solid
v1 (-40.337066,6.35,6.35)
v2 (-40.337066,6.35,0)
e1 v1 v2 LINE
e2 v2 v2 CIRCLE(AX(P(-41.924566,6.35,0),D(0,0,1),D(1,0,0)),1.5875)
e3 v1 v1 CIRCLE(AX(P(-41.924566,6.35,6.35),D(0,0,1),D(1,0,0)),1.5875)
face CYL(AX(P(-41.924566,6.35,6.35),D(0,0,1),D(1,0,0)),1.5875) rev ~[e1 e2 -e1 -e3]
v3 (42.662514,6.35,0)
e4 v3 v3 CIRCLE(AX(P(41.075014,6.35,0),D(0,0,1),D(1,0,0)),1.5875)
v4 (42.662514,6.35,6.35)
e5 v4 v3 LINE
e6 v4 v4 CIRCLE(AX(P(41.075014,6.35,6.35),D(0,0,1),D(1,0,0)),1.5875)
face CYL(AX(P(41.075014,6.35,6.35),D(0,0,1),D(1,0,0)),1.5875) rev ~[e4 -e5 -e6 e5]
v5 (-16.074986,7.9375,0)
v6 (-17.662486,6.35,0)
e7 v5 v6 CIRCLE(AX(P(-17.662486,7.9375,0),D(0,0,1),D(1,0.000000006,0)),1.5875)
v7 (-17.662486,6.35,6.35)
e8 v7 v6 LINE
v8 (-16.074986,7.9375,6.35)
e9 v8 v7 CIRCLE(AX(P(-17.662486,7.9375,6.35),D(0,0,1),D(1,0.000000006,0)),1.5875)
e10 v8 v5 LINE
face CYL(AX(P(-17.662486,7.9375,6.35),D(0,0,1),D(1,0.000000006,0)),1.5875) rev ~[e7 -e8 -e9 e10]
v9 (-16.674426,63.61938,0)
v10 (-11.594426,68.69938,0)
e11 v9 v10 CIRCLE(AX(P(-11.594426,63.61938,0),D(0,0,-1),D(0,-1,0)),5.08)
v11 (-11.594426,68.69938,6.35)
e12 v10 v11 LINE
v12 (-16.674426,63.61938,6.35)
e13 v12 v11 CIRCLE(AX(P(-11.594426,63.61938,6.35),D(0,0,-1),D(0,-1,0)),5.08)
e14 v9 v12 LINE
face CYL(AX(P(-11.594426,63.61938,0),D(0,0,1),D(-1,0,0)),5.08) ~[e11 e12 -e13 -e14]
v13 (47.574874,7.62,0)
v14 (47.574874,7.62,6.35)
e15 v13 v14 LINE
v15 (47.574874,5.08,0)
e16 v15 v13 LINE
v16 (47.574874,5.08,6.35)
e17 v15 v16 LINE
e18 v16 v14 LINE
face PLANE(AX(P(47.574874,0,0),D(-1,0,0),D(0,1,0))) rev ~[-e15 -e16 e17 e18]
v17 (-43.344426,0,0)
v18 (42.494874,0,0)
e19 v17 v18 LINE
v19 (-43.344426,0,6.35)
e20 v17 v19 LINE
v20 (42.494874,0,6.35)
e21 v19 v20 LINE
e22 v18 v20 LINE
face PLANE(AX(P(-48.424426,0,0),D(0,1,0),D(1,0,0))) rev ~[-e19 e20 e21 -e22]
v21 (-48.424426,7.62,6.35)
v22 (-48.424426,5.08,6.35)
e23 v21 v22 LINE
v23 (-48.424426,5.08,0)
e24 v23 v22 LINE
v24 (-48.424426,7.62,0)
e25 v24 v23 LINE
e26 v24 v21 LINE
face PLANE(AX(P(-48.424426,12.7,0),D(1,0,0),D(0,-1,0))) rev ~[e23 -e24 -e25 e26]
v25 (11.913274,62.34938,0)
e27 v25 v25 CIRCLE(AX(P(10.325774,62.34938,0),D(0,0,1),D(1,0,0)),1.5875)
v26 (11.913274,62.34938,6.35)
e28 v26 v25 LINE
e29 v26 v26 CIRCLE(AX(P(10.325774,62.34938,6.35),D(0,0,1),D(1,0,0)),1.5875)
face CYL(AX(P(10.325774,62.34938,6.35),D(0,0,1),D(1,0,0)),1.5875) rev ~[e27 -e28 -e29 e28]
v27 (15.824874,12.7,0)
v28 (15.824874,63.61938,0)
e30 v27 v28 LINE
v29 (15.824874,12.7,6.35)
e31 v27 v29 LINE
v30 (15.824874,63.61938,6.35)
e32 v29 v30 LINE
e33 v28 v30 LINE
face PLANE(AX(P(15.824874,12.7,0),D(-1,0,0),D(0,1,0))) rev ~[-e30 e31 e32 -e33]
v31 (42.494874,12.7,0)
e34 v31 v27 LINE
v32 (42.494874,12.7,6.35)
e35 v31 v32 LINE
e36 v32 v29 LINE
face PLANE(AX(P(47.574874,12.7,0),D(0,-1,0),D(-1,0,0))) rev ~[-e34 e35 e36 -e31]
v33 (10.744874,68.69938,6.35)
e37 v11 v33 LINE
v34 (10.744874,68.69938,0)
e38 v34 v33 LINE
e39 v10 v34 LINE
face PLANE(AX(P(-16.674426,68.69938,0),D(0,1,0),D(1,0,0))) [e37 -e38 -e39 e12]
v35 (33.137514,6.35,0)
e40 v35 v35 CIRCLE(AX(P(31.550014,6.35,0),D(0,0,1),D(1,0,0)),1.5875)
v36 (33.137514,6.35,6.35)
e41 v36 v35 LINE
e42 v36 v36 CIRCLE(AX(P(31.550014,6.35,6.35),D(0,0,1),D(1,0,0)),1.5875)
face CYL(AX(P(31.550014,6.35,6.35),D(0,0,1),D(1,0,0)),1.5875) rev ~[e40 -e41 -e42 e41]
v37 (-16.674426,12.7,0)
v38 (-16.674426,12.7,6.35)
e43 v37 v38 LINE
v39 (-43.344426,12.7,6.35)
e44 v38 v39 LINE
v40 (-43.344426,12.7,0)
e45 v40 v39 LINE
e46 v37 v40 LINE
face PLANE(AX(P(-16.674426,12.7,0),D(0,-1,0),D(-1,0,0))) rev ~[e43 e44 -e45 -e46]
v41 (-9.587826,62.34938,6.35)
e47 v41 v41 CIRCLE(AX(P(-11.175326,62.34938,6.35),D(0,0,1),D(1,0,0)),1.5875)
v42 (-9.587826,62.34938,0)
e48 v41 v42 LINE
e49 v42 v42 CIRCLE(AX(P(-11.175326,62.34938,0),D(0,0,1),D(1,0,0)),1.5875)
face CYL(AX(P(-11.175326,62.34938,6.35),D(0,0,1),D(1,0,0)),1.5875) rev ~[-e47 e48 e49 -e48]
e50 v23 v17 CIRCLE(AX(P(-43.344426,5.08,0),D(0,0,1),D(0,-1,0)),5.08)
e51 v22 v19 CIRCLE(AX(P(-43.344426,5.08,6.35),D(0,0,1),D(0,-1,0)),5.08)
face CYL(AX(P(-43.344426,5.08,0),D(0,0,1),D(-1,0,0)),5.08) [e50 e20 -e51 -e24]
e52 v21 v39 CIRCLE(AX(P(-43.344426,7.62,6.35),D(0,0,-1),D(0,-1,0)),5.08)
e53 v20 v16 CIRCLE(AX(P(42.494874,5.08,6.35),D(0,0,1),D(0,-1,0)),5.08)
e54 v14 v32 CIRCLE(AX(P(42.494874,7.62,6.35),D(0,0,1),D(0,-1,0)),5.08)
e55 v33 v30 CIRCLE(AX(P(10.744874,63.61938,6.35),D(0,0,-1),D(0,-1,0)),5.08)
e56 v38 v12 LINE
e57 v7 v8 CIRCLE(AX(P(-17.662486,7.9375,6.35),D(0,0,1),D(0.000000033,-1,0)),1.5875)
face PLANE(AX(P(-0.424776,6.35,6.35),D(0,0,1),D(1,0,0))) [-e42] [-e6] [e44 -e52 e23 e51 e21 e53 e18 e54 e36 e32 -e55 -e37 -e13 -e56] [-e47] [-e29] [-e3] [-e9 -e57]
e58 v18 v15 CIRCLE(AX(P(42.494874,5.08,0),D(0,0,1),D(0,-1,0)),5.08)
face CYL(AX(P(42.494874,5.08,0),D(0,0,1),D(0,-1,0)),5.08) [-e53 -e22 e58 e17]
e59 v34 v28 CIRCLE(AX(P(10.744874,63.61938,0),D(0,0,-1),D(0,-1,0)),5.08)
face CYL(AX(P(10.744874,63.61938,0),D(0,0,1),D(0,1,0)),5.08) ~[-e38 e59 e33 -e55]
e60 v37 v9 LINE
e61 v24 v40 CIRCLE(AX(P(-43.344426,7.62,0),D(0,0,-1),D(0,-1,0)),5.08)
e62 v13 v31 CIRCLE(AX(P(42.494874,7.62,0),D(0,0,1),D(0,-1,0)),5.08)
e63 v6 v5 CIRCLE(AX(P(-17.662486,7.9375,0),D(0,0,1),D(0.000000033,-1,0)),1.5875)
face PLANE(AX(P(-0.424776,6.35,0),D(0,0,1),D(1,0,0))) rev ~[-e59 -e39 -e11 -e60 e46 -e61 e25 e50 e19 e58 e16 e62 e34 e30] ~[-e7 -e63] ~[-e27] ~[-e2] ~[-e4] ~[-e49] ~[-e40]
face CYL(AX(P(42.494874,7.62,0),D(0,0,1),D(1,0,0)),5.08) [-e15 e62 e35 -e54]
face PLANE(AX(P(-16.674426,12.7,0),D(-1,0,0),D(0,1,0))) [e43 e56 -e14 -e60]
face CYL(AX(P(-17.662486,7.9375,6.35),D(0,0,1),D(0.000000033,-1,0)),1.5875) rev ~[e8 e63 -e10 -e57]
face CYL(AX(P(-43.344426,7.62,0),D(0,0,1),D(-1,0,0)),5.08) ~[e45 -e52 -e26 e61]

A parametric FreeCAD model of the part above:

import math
import FreeCAD as App
import Part
import Sketcher

V = App.Vector
Q = App.Units.Quantity


def edges_at(feature, points):
    """Names of the edges that pass closest to the given points."""
    edges = feature.Shape.Edges
    near = lambda p: min(range(len(edges)), key=lambda i: edges[i].distToShape(Part.Vertex(*p))[0])
    return sorted({f"Edge{near(p) + 1}" for p in points})


def add_polygon(sketch, points):
    """Adds a closed chain of lines whose ends are joined by coincident constraints."""
    first, n = sketch.GeometryCount, len(points)
    for a, b in zip(points, points[1:] + points[:1]):
        sketch.addGeometry(Part.LineSegment(App.Vector(*a, 0), App.Vector(*b, 0)), False)
    for i in range(n):
        sketch.addConstraint(Sketcher.Constraint("Coincident", first + i, 2, first + (i + 1) % n, 1))

doc = App.newDocument("Part")
params = doc.addObject("Spreadsheet::Sheet", "Params")
for row, (alias, value) in enumerate([
    ("sketch1_height", "0.5 in"),
    ("sketch1_width", "1.25 in"),
    ("pad1_length", "0.25 in"),
    ("sketch2_diameter", "0.125 in"),
    ("pocket1_length", "1 in"),
    ("fillet_radius", "0.2 in"),
    ("sketch3_diameter", "0.125 in"),
    ("pocket2_length", "1 in"),
], start=1):
    params.set(f"A{row}", alias)
    params.set(f"B{row}", "=" + value)
    params.setAlias(f"B{row}", alias)

body = doc.addObject("PartDesign::Body", "Body")

sketch1 = body.newObject("Sketcher::SketchObject", "Sketch")
sketch1.AttachmentSupport = (doc.getObject("XY_Plane"), [""])
sketch1.MapMode = "FlatFace"
add_polygon(sketch1, [(-48, 13), (-48, 0), (48, 0), (48, 13), (16, 13), (16, 69), (-17, 69), (-17, 13)])
sketch1.addConstraint([
    Sketcher.Constraint("Vertical", 0),
    Sketcher.Constraint("Horizontal", 1),
    Sketcher.Constraint("Vertical", 2),
    Sketcher.Constraint("Horizontal", 3),
    Sketcher.Constraint("Vertical", 4),
    Sketcher.Constraint("Horizontal", 5),
    Sketcher.Constraint("Vertical", 6),
    Sketcher.Constraint("Horizontal", 7),
    Sketcher.Constraint("PointOnObject", 0, 2, -1),
    Sketcher.Constraint("Horizontal", 3, 2, 6, 2),
    Sketcher.Constraint("Equal", 3, 7),
    Sketcher.Constraint("DistanceY", 0, 2, 0, 1, Q("0.5 in")),
    Sketcher.Constraint("DistanceX", 3, 2, 3, 1, Q("1.25 in")),
    Sketcher.Constraint("DistanceX", 1, 1, 1, 2, Q("3.7795 in")),
    Sketcher.Constraint("DistanceY", 4, 1, 4, 2, Q("2.2047 in")),
    Sketcher.Constraint("DistanceX", 0, 2, -1, 1, Q("48.424426 mm")),
])
sketch1.setExpression("Constraints[19]", "Params.sketch1_height")
sketch1.setExpression("Constraints[20]", "Params.sketch1_width")
pad1 = body.newObject("PartDesign::Pad", "Pad")
pad1.Profile = sketch1
pad1.setExpression("Length", "Params.pad1_length")

sketch2 = body.newObject("Sketcher::SketchObject", "Sketch001")
sketch2.AttachmentSupport = (doc.getObject("XY_Plane"), [""])
sketch2.MapMode = "FlatFace"
sketch2.AttachmentOffset = App.Placement(V(0, 0, 0.25 * 25.4), App.Rotation())
sketch2.addGeometry([
    Part.Circle(V(41.1, 6.3, 0), V(0, 0, 1), 1.6),
    Part.Circle(V(-41.9, 6.3, 0), V(0, 0, 1), 1.6),
    Part.Circle(V(-11.2, 62.3, 0), V(0, 0, 1), 1.6),
    Part.Circle(V(10.3, 62.3, 0), V(0, 0, 1), 1.6),
], False)
sketch2.addConstraint([
    Sketcher.Constraint("Equal", 0, 1),
    Sketcher.Constraint("Equal", 1, 2),
    Sketcher.Constraint("Equal", 2, 3),
    Sketcher.Constraint("Horizontal", 0, 3, 1, 3),
    Sketcher.Constraint("Horizontal", 2, 3, 3, 3),
    Sketcher.Constraint("Diameter", 0, Q("0.125 in")),
    Sketcher.Constraint("DistanceY", -1, 1, 0, 3, Q("0.25 in")),
    Sketcher.Constraint("DistanceY", -1, 1, 2, 3, Q("2.4547 in")),
    Sketcher.Constraint("DistanceX", 1, 3, 0, 3, Q("3.2677 in")),
    Sketcher.Constraint("DistanceX", 1, 3, 2, 3, Q("1.2106 in")),
    Sketcher.Constraint("DistanceX", 2, 3, 3, 3, Q("0.8465 in")),
    Sketcher.Constraint("DistanceX", -1, 1, 0, 3, Q("41.075014 mm")),
])
sketch2.setExpression("Constraints[5]", "Params.sketch2_diameter")
pocket1 = body.newObject("PartDesign::Pocket", "Pocket")
pocket1.Profile = sketch2
pocket1.setExpression("Length", "Params.pocket1_length")
doc.recompute()

fillet = body.newObject("PartDesign::Fillet", "Fillet")
fillet.Base = (pocket1, edges_at(pocket1, [
    (47.575, 12.7, 3.175),
    (47.575, 0, 3.175),
    (-48.424, 0, 3.175),
    (-48.424, 12.7, 3.175),
    (15.825, 68.699, 3.175),
    (-16.674, 68.699, 3.175),
]))
fillet.setExpression("Radius", "Params.fillet_radius")

sketch3 = body.newObject("Sketcher::SketchObject", "Sketch002")
sketch3.AttachmentSupport = (doc.getObject("XY_Plane"), [""])
sketch3.MapMode = "FlatFace"
sketch3.AttachmentOffset = App.Placement(V(0, 0, 0.25 * 25.4), App.Rotation())
sketch3.addGeometry([
    Part.ArcOfCircle(Part.Circle(V(-17.7, 7.9, 0), V(0, 0, 1), 1.6), math.radians(0), math.radians(270)),
    Part.ArcOfCircle(Part.Circle(V(-17.7, 7.9, 0), V(0, 0, 1), 1.6), math.radians(-90), math.radians(0)),
    Part.Circle(V(31.6, 6.3, 0), V(0, 0, 1), 1.6),
], False)
sketch3.addConstraint([
    Sketcher.Constraint("Tangent", 0, 1, 1, 2),
    Sketcher.Constraint("Coincident", 1, 1, 0, 2),
    Sketcher.Constraint("Equal", 1, 2),
    Sketcher.Constraint("Horizontal", 1, 3, 0, 1),
    Sketcher.Constraint("Horizontal", 2, 3, 1, 1),
    Sketcher.Constraint("Vertical", 0, 3, 1, 1),
    Sketcher.Constraint("Diameter", 2, Q("0.125 in")),
    Sketcher.Constraint("DistanceY", -1, 1, 2, 3, Q("0.25 in")),
    Sketcher.Constraint("DistanceX", 0, 3, 2, 3, Q("1.9375 in")),
    Sketcher.Constraint("DistanceX", 0, 3, -1, 1, Q("17.662486 mm")),
])
sketch3.setExpression("Constraints[6]", "Params.sketch3_diameter")
pocket2 = body.newObject("PartDesign::Pocket", "Pocket001")
pocket2.Profile = sketch3
pocket2.setExpression("Length", "Params.pocket2_length")

doc.recompute()
